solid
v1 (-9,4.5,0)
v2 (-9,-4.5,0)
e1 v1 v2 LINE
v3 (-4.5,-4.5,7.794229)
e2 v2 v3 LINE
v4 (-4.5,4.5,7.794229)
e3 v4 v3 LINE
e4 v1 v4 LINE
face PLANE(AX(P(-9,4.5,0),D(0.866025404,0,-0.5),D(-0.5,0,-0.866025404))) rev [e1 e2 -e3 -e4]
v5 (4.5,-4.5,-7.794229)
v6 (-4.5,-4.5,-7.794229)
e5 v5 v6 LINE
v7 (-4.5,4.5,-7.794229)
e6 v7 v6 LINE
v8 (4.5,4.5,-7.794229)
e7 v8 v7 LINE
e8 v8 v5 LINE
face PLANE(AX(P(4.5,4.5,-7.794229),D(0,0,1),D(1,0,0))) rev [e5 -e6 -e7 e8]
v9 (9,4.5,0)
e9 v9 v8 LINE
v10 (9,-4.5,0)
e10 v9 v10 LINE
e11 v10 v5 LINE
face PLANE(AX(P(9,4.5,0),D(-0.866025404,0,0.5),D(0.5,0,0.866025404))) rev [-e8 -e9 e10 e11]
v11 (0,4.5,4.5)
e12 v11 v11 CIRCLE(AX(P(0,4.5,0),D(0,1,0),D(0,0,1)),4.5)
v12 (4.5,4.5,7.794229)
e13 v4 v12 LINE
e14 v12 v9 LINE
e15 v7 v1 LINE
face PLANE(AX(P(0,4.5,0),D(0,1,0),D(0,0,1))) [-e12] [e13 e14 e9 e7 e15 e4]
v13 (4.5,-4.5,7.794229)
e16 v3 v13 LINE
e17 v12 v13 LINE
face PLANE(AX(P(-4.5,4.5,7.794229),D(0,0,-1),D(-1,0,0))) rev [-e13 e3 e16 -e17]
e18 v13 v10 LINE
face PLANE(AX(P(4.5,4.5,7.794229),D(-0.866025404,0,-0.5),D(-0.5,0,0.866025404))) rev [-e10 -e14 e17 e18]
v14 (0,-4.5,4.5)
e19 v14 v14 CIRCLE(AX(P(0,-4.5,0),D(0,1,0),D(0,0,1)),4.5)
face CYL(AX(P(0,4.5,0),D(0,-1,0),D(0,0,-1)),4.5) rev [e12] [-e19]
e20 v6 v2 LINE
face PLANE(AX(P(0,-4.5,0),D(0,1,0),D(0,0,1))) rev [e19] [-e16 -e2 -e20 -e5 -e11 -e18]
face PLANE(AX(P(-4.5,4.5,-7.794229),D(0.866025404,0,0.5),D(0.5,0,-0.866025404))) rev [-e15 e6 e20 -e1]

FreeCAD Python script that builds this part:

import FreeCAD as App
import Part
import Sketcher

V = App.Vector
Q = App.Units.Quantity

doc = App.newDocument("Part")
body = doc.addObject("PartDesign::Body", "Body")

# Sketch on XZ plane
sketch1 = doc.addObject("Sketcher::SketchObject", "Sketch")
body.addObject(sketch1)
sketch1.AttachmentSupport = (doc.XZ_Plane, [""])
sketch1.MapMode = "FlatFace"
sketch1.addGeometry([
    Part.LineSegment(V(4.5, 7.8, 0), V(9, 0, 0)),  # 0
    Part.LineSegment(V(9, 0, 0), V(4.5, -7.8, 0)),  # 1
    Part.LineSegment(V(4.5, -7.8, 0), V(-4.5, -7.8, 0)),  # 2
    Part.LineSegment(V(-4.5, -7.8, 0), V(-9, 0, 0)),  # 3
    Part.LineSegment(V(-9, 0, 0), V(-4.5, 7.8, 0)),  # 4
    Part.LineSegment(V(-4.5, 7.8, 0), V(4.5, 7.8, 0)),  # 5
    Part.Circle(V(0, 0, 0), V(0, 0, 1), 4.5),  # 6
], False)
sketch1.addConstraint([
    Sketcher.Constraint("Coincident", 0, 2, 1, 1),
    Sketcher.Constraint("Coincident", 1, 2, 2, 1),
    Sketcher.Constraint("Coincident", 2, 2, 3, 1),
    Sketcher.Constraint("Coincident", 3, 2, 4, 1),
    Sketcher.Constraint("Coincident", 4, 2, 5, 1),
    Sketcher.Constraint("Coincident", 5, 2, 0, 1),
    Sketcher.Constraint("Horizontal", 2),
    Sketcher.Constraint("Horizontal", 5),
    Sketcher.Constraint("Coincident", 6, 3, -1, 1),
    Sketcher.Constraint("Symmetric", 0, 2, 3, 2, -1, 1),
    Sketcher.Constraint("Symmetric", 1, 2, 4, 2, -1, 1),
    Sketcher.Constraint("PointOnObject", 0, 2, -1),
    Sketcher.Constraint("Parallel", 0, 3),
    Sketcher.Constraint("Vertical", 2, 2, 4, 2),
    Sketcher.Constraint("Diameter", 6, 9.0),
    Sketcher.Constraint("DistanceX", 2, 2, 2, 1, 9.0),
    Sketcher.Constraint("Angle", 0, Q("-60 deg")),
    Sketcher.Constraint("Distance", 0, 9.0),
])
pad1 = doc.addObject("PartDesign::Pad", "Pad")
body.addObject(pad1)
pad1.Profile = sketch1
pad1.Length = 9
pad1.Midplane = True

doc.recompute()
